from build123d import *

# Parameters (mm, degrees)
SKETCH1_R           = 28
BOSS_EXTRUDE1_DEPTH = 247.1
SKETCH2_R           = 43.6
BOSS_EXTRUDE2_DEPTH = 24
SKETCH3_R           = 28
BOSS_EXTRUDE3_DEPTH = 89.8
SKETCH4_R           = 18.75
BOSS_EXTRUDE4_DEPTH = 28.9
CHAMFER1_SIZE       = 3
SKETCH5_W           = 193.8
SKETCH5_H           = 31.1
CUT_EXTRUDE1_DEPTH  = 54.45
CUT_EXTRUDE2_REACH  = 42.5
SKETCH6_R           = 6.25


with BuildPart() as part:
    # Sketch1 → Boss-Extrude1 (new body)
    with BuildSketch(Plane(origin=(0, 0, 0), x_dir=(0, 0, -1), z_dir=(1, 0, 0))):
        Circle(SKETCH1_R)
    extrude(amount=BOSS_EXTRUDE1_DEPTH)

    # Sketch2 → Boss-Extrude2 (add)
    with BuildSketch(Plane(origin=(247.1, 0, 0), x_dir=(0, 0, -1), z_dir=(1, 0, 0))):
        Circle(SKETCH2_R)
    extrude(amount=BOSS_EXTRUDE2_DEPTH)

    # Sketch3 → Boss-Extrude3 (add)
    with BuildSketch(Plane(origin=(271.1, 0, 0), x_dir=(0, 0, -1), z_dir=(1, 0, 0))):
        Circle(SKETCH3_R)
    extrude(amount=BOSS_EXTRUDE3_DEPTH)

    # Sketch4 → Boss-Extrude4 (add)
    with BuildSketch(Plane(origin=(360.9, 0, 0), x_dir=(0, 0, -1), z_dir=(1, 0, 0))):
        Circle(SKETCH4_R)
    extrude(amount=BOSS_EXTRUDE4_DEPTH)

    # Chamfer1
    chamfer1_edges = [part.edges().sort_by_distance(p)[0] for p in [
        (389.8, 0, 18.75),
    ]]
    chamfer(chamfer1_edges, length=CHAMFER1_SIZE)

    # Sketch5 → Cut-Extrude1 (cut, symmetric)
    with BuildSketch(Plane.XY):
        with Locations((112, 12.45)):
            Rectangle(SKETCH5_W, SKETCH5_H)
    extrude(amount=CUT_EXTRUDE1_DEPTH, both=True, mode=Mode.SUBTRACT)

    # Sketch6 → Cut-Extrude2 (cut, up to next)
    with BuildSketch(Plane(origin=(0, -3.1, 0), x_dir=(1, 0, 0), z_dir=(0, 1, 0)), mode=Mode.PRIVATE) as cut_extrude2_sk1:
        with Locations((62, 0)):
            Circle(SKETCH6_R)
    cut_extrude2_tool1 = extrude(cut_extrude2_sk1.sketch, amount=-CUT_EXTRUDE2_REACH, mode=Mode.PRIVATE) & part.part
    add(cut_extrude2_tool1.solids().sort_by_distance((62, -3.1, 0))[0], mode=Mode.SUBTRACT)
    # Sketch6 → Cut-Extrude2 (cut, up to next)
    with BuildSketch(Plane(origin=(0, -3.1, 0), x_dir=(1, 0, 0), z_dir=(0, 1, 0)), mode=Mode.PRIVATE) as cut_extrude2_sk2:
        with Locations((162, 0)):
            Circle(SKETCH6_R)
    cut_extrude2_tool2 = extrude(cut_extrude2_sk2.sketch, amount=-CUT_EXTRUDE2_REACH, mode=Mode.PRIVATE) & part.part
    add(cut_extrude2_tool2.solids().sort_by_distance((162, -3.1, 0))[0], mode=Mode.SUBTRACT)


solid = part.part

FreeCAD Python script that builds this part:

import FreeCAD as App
import Part
import Sketcher
Q = App.Units.Quantity


def edges_at(feature, points):
    """Names of the edges that pass closest to the given points."""
    edges = feature.Shape.Edges
    near = lambda p: min(range(len(edges)), key=lambda i: edges[i].distToShape(Part.Vertex(*p))[0])
    return sorted({f"Edge{near(p) + 1}" for p in points})

doc = App.newDocument("Part")
body = doc.addObject("PartDesign::Body", "Body")

# Sketch on YZ plane
sketch1 = body.newObject("Sketcher::SketchObject", "Sketch")
sketch1.AttachmentSupport = (doc.getObject("YZ_Plane"), [""])
sketch1.MapMode = "FlatFace"
sketch1.addGeometry(Part.Circle(App.Vector(0, 0, 0), App.Vector(0, 0, 1), 28), False)
sketch1.addConstraint([
    Sketcher.Constraint("Coincident", 0, 3, -1, 1),
    Sketcher.Constraint("Diameter", 0, Q("56 mm")),
])
pad1 = body.newObject("PartDesign::Pad", "Pad")
pad1.Profile = sketch1
pad1.Length = 247.1

# Sketch on YZ plane
sketch2 = body.newObject("Sketcher::SketchObject", "Sketch001")
sketch2.AttachmentSupport = (doc.getObject("YZ_Plane"), [""])
sketch2.MapMode = "FlatFace"
sketch2.AttachmentOffset = App.Placement(App.Vector(0, 0, 247.1), App.Rotation())
sketch2.addGeometry(Part.Circle(App.Vector(0, 0, 0), App.Vector(0, 0, 1), 43.6), False)
sketch2.addConstraint([
    Sketcher.Constraint("Coincident", 0, 3, -1, 1),
    Sketcher.Constraint("Diameter", 0, Q("87.2 mm")),
])
pad2 = body.newObject("PartDesign::Pad", "Pad001")
pad2.Profile = sketch2
pad2.Length = 24

# Sketch on YZ plane
sketch3 = body.newObject("Sketcher::SketchObject", "Sketch002")
sketch3.AttachmentSupport = (doc.getObject("YZ_Plane"), [""])
sketch3.MapMode = "FlatFace"
sketch3.AttachmentOffset = App.Placement(App.Vector(0, 0, 271.1), App.Rotation())
sketch3.addGeometry(Part.Circle(App.Vector(0, 0, 0), App.Vector(0, 0, 1), 28), False)
sketch3.addConstraint([
    Sketcher.Constraint("Coincident", 0, 3, -1, 1),
    Sketcher.Constraint("Diameter", 0, Q("56 mm")),
])
pad3 = body.newObject("PartDesign::Pad", "Pad002")
pad3.Profile = sketch3
pad3.Length = 89.8

# Sketch on YZ plane
sketch4 = body.newObject("Sketcher::SketchObject", "Sketch003")
sketch4.AttachmentSupport = (doc.getObject("YZ_Plane"), [""])
sketch4.MapMode = "FlatFace"
sketch4.AttachmentOffset = App.Placement(App.Vector(0, 0, 360.9), App.Rotation())
sketch4.addGeometry(Part.Circle(App.Vector(0, 0, 0), App.Vector(0, 0, 1), 18.75), False)
sketch4.addConstraint([
    Sketcher.Constraint("Coincident", 0, 3, -1, 1),
    Sketcher.Constraint("Diameter", 0, Q("37.5 mm")),
])
pad4 = body.newObject("PartDesign::Pad", "Pad003")
pad4.Profile = sketch4
pad4.Length = 28.9
doc.recompute()

chamfer = body.newObject("PartDesign::Chamfer", "Chamfer")
chamfer.Base = (pad4, edges_at(pad4, [(389.8, 0, 18.75)]))
chamfer.Size = 3

# Sketch on XY plane
sketch5 = body.newObject("Sketcher::SketchObject", "Sketch004")
sketch5.AttachmentSupport = (doc.getObject("XY_Plane"), [""])
sketch5.MapMode = "FlatFace"
sketch5.addGeometry([
    Part.LineSegment(App.Vector(15.1, 28, 0), App.Vector(15.1, -3.1, 0)),
    Part.LineSegment(App.Vector(15.1, -3.1, 0), App.Vector(208.9, -3.1, 0)),
    Part.LineSegment(App.Vector(208.9, -3.1, 0), App.Vector(208.9, 28, 0)),
    Part.LineSegment(App.Vector(208.9, 28, 0), App.Vector(15.1, 28, 0)),
], False)
sketch5.addConstraint([
    Sketcher.Constraint("Coincident", 0, 2, 1, 1),
    Sketcher.Constraint("Coincident", 1, 2, 2, 1),
    Sketcher.Constraint("Coincident", 2, 2, 3, 1),
    Sketcher.Constraint("Coincident", 3, 2, 0, 1),
    Sketcher.Constraint("Vertical", 0),
    Sketcher.Constraint("Horizontal", 1),
    Sketcher.Constraint("Vertical", 2),
    Sketcher.Constraint("Horizontal", 3),
    Sketcher.Constraint("DistanceX", 1, 1, 1, 2, Q("193.8 mm")),
    Sketcher.Constraint("DistanceY", 0, 2, 0, 1, Q("31.1 mm")),
    Sketcher.Constraint("DistanceY", -1, 1, 2, 2, Q("28 mm")),
    Sketcher.Constraint("DistanceX", -1, 1, 0, 2, Q("15.1 mm")),
])
pocket1 = body.newObject("PartDesign::Pocket", "Pocket")
pocket1.Profile = sketch5
pocket1.Length = 108.9
pocket1.Midplane = True

# Sketch on XZ plane
sketch6 = body.newObject("Sketcher::SketchObject", "Sketch005")
sketch6.AttachmentSupport = (doc.getObject("XZ_Plane"), [""])
sketch6.MapMode = "FlatFace"
sketch6.AttachmentOffset = App.Placement(App.Vector(0, 0, 3.1), App.Rotation())
sketch6.addGeometry(Part.Circle(App.Vector(62, 0, 0), App.Vector(0, 0, 1), 6.25), False)
sketch6.addConstraint([
    Sketcher.Constraint("PointOnObject", 0, 3, -1),
    Sketcher.Constraint("Diameter", 0, Q("12.5 mm")),
    Sketcher.Constraint("DistanceX", -1, 1, 0, 3, Q("62 mm")),
])
pocket2 = body.newObject("PartDesign::Pocket", "Pocket001")
pocket2.Profile = sketch6
pocket2.Type = "UpToFirst"
pocket2.Reversed = True

# Sketch on XZ plane
sketch7 = body.newObject("Sketcher::SketchObject", "Sketch006")
sketch7.AttachmentSupport = (doc.getObject("XZ_Plane"), [""])
sketch7.MapMode = "FlatFace"
sketch7.AttachmentOffset = App.Placement(App.Vector(0, 0, 3.1), App.Rotation())
sketch7.addGeometry(Part.Circle(App.Vector(162, 0, 0), App.Vector(0, 0, 1), 6.25), False)
sketch7.addConstraint([
    Sketcher.Constraint("PointOnObject", 0, 3, -1),
    Sketcher.Constraint("Diameter", 0, Q("12.5 mm")),
    Sketcher.Constraint("DistanceX", -1, 1, 0, 3, Q("162 mm")),
])
pocket3 = body.newObject("PartDesign::Pocket", "Pocket002")
pocket3.Profile = sketch7
pocket3.Type = "UpToFirst"
pocket3.Reversed = True

doc.recompute()
